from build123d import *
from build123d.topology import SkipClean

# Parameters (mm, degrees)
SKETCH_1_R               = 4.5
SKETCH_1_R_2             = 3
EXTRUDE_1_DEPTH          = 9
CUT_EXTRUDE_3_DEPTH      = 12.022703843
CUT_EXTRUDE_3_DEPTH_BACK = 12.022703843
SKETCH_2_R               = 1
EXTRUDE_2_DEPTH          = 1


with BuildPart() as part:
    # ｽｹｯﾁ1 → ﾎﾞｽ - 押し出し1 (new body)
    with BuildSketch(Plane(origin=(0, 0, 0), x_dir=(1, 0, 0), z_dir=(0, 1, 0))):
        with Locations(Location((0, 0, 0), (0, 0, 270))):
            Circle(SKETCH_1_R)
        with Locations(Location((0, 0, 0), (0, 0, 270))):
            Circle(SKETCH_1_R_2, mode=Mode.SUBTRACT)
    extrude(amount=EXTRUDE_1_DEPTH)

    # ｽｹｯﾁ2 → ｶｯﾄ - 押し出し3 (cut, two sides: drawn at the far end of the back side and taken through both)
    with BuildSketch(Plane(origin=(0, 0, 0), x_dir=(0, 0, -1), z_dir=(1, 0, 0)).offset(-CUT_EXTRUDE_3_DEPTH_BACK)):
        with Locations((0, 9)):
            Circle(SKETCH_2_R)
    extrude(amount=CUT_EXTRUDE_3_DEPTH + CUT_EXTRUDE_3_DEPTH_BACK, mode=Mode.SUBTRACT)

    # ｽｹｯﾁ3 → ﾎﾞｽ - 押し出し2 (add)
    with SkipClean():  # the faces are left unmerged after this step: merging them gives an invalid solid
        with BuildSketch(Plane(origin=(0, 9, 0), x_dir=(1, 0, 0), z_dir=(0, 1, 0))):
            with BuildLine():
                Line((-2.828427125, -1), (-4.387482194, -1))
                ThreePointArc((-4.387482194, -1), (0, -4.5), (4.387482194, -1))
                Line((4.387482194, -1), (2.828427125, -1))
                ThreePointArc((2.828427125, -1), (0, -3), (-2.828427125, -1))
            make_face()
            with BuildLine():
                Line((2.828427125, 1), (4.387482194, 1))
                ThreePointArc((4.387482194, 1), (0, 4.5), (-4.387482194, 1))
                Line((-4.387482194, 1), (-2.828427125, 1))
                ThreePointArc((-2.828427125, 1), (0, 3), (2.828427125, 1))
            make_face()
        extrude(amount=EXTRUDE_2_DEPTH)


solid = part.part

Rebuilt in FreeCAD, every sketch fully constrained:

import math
import FreeCAD as App
import Part
import Sketcher
from FreeCAD import Vector

doc = App.newDocument("Part")
body = doc.addObject("PartDesign::Body", "Body")

# Sketch on XZ plane
sketch1 = body.newObject("Sketcher::SketchObject", "Sketch")
sketch1.AttachmentSupport = (doc.getObject("XZ_Plane"), [""])
sketch1.MapMode = "FlatFace"
sketch1.addGeometry([
    Part.Circle(Vector(0, 0, 0), Vector(0, 0, 1), 4.5),
    Part.Circle(Vector(0, 0, 0), Vector(0, 0, 1), 3),
], False)
sketch1.addConstraint([
    Sketcher.Constraint("Coincident", 0, 3, -1, 1),
    Sketcher.Constraint("Coincident", 1, 3, -1, 1),
    Sketcher.Constraint("Diameter", 0, 9.0),
    Sketcher.Constraint("Diameter", 1, 6.0),
])
pad1 = body.newObject("PartDesign::Pad", "Pad")
pad1.Profile = sketch1
pad1.Length = 9
pad1.Reversed = True

# Sketch on YZ plane
sketch2 = body.newObject("Sketcher::SketchObject", "Sketch001")
sketch2.AttachmentSupport = (doc.getObject("YZ_Plane"), [""])
sketch2.MapMode = "FlatFace"
sketch2.addGeometry(Part.Circle(Vector(9, 0, 0), Vector(0, 0, 1), 1), False)
sketch2.addConstraint([
    Sketcher.Constraint("PointOnObject", 0, 3, -1),
    Sketcher.Constraint("Diameter", 0, 2.0),
    Sketcher.Constraint("DistanceX", -1, 1, 0, 3, 9.0),
])
pocket1 = body.newObject("PartDesign::Pocket", "Pocket")
pocket1.Profile = sketch2
pocket1.Type = "ThroughAll"
pocket1.Midplane = True

# Sketch on XZ plane
sketch3 = body.newObject("Sketcher::SketchObject", "Sketch002")
sketch3.AttachmentSupport = (doc.getObject("XZ_Plane"), [""])
sketch3.MapMode = "FlatFace"
sketch3.AttachmentOffset = App.Placement(Vector(0, 0, -9), App.Rotation())
sketch3.addGeometry([
    Part.LineSegment(Vector(-2.8, 1, 0), Vector(-4.4, 1, 0)),  # 0
    Part.ArcOfCircle(Part.Circle(Vector(0, 0, 0), Vector(0, 0, 1), 4.5), math.radians(13), math.radians(167)),  # 1
    Part.LineSegment(Vector(4.4, 1, 0), Vector(2.8, 1, 0)),  # 2
    Part.ArcOfCircle(Part.Circle(Vector(0, 0, 0), Vector(0, 0, 1), 3), math.radians(19), math.radians(161)),  # 3
    Part.LineSegment(Vector(2.8, -1, 0), Vector(4.4, -1, 0)),  # 4
    Part.ArcOfCircle(Part.Circle(Vector(0, 0, 0), Vector(0, 0, 1), 4.5), math.radians(-167), math.radians(-13)),  # 5
    Part.LineSegment(Vector(-4.4, -1, 0), Vector(-2.8, -1, 0)),  # 6
    Part.ArcOfCircle(Part.Circle(Vector(0, 0, 0), Vector(0, 0, 1), 3), math.radians(-161), math.radians(-19)),  # 7
], False)
sketch3.addConstraint([
    Sketcher.Constraint("Coincident", 0, 2, 1, 2),
    Sketcher.Constraint("Coincident", 1, 1, 2, 1),
    Sketcher.Constraint("Coincident", 2, 2, 3, 1),
    Sketcher.Constraint("Coincident", 3, 2, 0, 1),
    Sketcher.Constraint("Coincident", 4, 2, 5, 2),
    Sketcher.Constraint("Coincident", 5, 1, 6, 1),
    Sketcher.Constraint("Coincident", 6, 2, 7, 1),
    Sketcher.Constraint("Coincident", 7, 2, 4, 1),
    Sketcher.Constraint("Horizontal", 0),
    Sketcher.Constraint("Horizontal", 2),
    Sketcher.Constraint("Horizontal", 4),
    Sketcher.Constraint("Horizontal", 6),
    Sketcher.Constraint("Coincident", 1, 3, -1, 1),
    Sketcher.Constraint("Coincident", 3, 3, -1, 1),
    Sketcher.Constraint("Coincident", 5, 3, -1, 1),
    Sketcher.Constraint("Coincident", 7, 3, -1, 1),
    Sketcher.Constraint("Equal", 1, 5),
    Sketcher.Constraint("Equal", 3, 7),
    Sketcher.Constraint("Horizontal", 0, 2, 1, 1),
    Sketcher.Constraint("Horizontal", 4, 2, 5, 1),
    Sketcher.Constraint("Vertical", 1, 1, 4, 2),
    Sketcher.Constraint("Radius", 3, 3.0),
    Sketcher.Constraint("Radius", 1, 4.5),
    Sketcher.Constraint("DistanceY", -1, 1, 0, 2, 1.0),
])
pad2 = body.newObject("PartDesign::Pad", "Pad001")
pad2.Profile = sketch3
pad2.Length = 1
pad2.Reversed = True

doc.recompute()
